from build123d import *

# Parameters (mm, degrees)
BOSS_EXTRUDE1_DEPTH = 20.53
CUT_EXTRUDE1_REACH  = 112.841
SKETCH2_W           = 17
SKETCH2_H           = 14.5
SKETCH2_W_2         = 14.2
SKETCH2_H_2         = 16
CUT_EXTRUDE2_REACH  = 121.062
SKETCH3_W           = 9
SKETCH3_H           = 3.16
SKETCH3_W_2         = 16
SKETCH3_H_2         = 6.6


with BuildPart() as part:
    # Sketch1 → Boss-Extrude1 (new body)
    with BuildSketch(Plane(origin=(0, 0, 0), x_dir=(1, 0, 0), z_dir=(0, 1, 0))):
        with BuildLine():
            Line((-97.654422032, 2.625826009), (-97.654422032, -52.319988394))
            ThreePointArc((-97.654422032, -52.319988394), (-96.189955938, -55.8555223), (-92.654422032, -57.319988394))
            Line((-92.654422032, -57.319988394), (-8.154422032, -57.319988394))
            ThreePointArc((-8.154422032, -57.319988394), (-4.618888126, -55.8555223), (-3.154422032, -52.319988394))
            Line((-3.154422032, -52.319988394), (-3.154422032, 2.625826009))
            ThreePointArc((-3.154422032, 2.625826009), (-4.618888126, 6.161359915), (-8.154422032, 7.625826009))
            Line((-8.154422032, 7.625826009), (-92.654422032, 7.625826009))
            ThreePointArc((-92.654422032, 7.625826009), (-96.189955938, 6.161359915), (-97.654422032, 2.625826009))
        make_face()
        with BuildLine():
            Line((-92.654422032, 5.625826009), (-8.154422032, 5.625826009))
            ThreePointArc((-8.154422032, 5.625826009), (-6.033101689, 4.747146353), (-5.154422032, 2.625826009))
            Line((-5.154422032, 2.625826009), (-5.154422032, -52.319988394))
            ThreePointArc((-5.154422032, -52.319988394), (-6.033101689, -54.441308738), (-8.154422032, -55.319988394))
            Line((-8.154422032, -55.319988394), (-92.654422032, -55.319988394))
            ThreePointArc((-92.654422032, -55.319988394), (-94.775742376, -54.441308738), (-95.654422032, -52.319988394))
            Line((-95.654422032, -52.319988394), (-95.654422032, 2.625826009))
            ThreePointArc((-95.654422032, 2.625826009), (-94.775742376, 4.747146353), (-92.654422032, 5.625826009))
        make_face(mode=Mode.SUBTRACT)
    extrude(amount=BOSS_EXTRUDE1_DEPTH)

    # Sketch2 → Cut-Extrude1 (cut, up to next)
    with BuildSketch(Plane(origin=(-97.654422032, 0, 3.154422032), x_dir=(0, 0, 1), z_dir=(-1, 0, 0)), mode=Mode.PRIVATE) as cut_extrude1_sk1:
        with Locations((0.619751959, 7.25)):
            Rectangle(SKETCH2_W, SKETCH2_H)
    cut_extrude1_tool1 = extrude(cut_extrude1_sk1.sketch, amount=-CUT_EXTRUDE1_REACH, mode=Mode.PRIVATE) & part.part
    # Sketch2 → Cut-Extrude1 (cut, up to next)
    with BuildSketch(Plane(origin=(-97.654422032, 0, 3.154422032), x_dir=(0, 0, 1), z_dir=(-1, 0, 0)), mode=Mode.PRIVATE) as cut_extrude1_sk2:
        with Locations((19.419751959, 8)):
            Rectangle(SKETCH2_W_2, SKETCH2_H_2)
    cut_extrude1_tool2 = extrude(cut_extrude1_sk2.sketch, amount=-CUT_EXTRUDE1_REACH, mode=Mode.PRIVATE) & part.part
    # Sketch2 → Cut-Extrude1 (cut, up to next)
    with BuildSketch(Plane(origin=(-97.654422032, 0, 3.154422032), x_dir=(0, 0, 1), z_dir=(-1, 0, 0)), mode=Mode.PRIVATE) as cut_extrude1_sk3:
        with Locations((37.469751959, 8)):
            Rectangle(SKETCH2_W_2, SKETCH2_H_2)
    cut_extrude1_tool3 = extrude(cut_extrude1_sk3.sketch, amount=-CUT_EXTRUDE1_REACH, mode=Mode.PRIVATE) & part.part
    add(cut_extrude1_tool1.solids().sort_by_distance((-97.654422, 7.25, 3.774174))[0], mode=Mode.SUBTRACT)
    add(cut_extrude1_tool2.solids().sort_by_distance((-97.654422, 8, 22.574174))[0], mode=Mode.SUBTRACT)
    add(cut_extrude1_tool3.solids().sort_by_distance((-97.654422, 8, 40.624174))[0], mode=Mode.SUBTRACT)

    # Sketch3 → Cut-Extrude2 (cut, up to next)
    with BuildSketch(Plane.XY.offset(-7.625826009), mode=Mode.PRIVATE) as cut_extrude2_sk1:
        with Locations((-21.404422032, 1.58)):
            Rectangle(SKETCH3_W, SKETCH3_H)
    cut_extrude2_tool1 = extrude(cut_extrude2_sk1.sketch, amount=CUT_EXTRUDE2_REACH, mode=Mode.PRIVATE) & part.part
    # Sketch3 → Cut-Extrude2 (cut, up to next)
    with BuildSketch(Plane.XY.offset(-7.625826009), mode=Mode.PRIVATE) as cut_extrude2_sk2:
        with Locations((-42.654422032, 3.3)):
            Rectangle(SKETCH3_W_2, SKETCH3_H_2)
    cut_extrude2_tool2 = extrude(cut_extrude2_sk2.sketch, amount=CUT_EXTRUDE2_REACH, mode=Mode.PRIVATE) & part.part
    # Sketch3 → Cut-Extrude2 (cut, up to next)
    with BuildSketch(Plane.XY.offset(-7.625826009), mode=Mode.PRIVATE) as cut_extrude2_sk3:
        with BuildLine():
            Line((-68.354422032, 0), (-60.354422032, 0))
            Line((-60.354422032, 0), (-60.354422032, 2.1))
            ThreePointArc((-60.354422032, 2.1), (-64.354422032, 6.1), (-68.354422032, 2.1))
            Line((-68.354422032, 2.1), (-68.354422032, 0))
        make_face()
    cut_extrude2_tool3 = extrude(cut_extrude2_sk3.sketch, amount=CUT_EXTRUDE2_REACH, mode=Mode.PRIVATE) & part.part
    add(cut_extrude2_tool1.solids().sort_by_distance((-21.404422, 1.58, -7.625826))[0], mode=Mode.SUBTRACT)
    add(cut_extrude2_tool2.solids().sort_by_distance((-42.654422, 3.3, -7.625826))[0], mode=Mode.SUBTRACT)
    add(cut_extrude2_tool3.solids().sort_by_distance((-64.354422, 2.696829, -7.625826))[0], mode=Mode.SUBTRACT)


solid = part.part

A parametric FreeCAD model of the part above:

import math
import FreeCAD as App
import Part
import Sketcher
Q = App.Units.Quantity

doc = App.newDocument("Part")
body = doc.addObject("PartDesign::Body", "Body")

# Sketch on XZ plane
sketch1 = body.newObject("Sketcher::SketchObject", "Sketch")
sketch1.AttachmentSupport = (doc.getObject("XZ_Plane"), [""])
sketch1.MapMode = "FlatFace"
sketch1.addGeometry(Part.LineSegment(App.Vector(-97.654422, -2.625826, 0), App.Vector(-97.654422, 52.319988, 0)), False)
sketch1.addGeometry(Part.ArcOfCircle(Part.Circle(App.Vector(-92.654422, 52.319988, 0), App.Vector(0, 0, 1), 5), math.radians(90), math.radians(180)), False)
sketch1.addGeometry(Part.LineSegment(App.Vector(-92.654422, 57.319988, 0), App.Vector(-8.154422, 57.319988, 0)), False)
sketch1.addGeometry(Part.ArcOfCircle(Part.Circle(App.Vector(-8.154422, 52.319988, 0), App.Vector(0, 0, 1), 5), math.radians(0), math.radians(90)), False)
sketch1.addGeometry(Part.LineSegment(App.Vector(-3.154422, 52.319988, 0), App.Vector(-3.154422, -2.625826, 0)), False)
sketch1.addGeometry(Part.ArcOfCircle(Part.Circle(App.Vector(-8.154422, -2.625826, 0), App.Vector(0, 0, 1), 5), math.radians(-90), math.radians(0)), False)
sketch1.addGeometry(Part.LineSegment(App.Vector(-8.154422, -7.625826, 0), App.Vector(-92.654422, -7.625826, 0)), False)
sketch1.addGeometry(Part.ArcOfCircle(Part.Circle(App.Vector(-92.654422, -2.625826, 0), App.Vector(0, 0, 1), 5), math.radians(180), math.radians(270)), False)
sketch1.addGeometry(Part.ArcOfCircle(Part.Circle(App.Vector(-92.654422, -2.625826, 0), App.Vector(0, 0, 1), 3), math.radians(180), math.radians(270)), False)
sketch1.addGeometry(Part.LineSegment(App.Vector(-92.654422, -5.625826, 0), App.Vector(-8.154422, -5.625826, 0)), False)
sketch1.addGeometry(Part.ArcOfCircle(Part.Circle(App.Vector(-8.154422, -2.625826, 0), App.Vector(0, 0, 1), 3), math.radians(-90), math.radians(0)), False)
sketch1.addGeometry(Part.LineSegment(App.Vector(-5.154422, -2.625826, 0), App.Vector(-5.154422, 52.319988, 0)), False)
sketch1.addGeometry(Part.ArcOfCircle(Part.Circle(App.Vector(-8.154422, 52.319988, 0), App.Vector(0, 0, 1), 3), math.radians(0), math.radians(90)), False)
sketch1.addGeometry(Part.LineSegment(App.Vector(-8.154422, 55.319988, 0), App.Vector(-92.654422, 55.319988, 0)), False)
sketch1.addGeometry(Part.ArcOfCircle(Part.Circle(App.Vector(-92.654422, 52.319988, 0), App.Vector(0, 0, 1), 3), math.radians(90), math.radians(180)), False)
sketch1.addGeometry(Part.LineSegment(App.Vector(-95.654422, 52.319988, 0), App.Vector(-95.654422, -2.625826, 0)), False)
sketch1.addConstraint(Sketcher.Constraint("Tangent", 0, 2, 1, 2))
sketch1.addConstraint(Sketcher.Constraint("Tangent", 1, 1, 2, 1))
sketch1.addConstraint(Sketcher.Constraint("Tangent", 2, 2, 3, 2))
sketch1.addConstraint(Sketcher.Constraint("Tangent", 3, 1, 4, 1))
sketch1.addConstraint(Sketcher.Constraint("Tangent", 4, 2, 5, 2))
sketch1.addConstraint(Sketcher.Constraint("Tangent", 5, 1, 6, 1))
sketch1.addConstraint(Sketcher.Constraint("Tangent", 6, 2, 7, 2))
sketch1.addConstraint(Sketcher.Constraint("Tangent", 7, 1, 0, 1))
sketch1.addConstraint(Sketcher.Constraint("Tangent", 8, 2, 9, 1))
sketch1.addConstraint(Sketcher.Constraint("Tangent", 9, 2, 10, 1))
sketch1.addConstraint(Sketcher.Constraint("Tangent", 10, 2, 11, 1))
sketch1.addConstraint(Sketcher.Constraint("Tangent", 11, 2, 12, 1))
sketch1.addConstraint(Sketcher.Constraint("Tangent", 12, 2, 13, 1))
sketch1.addConstraint(Sketcher.Constraint("Tangent", 13, 2, 14, 1))
sketch1.addConstraint(Sketcher.Constraint("Tangent", 14, 2, 15, 1))
sketch1.addConstraint(Sketcher.Constraint("Tangent", 15, 2, 8, 1))
sketch1.addConstraint(Sketcher.Constraint("Vertical", 0))
sketch1.addConstraint(Sketcher.Constraint("Horizontal", 2))
sketch1.addConstraint(Sketcher.Constraint("Vertical", 4))
sketch1.addConstraint(Sketcher.Constraint("Horizontal", 6))
sketch1.addConstraint(Sketcher.Constraint("Horizontal", 9))
sketch1.addConstraint(Sketcher.Constraint("Vertical", 11))
sketch1.addConstraint(Sketcher.Constraint("Horizontal", 13))
sketch1.addConstraint(Sketcher.Constraint("Vertical", 15))
sketch1.addConstraint(Sketcher.Constraint("Coincident", 8, 3, 7, 3))
sketch1.addConstraint(Sketcher.Constraint("Coincident", 10, 3, 5, 3))
sketch1.addConstraint(Sketcher.Constraint("Coincident", 12, 3, 3, 3))
sketch1.addConstraint(Sketcher.Constraint("Equal", 1, 3))
sketch1.addConstraint(Sketcher.Constraint("Equal", 3, 5))
sketch1.addConstraint(Sketcher.Constraint("Equal", 5, 7))
sketch1.addConstraint(Sketcher.Constraint("Equal", 12, 14))
sketch1.addConstraint(Sketcher.Constraint("Radius", 1, Q("5 mm")))
sketch1.addConstraint(Sketcher.Constraint("Radius", 8, Q("3 mm")))
sketch1.addConstraint(Sketcher.Constraint("DistanceX", 2, 1, 2, 2, Q("84.5 mm")))
sketch1.addConstraint(Sketcher.Constraint("DistanceY", 0, 1, 0, 2, Q("54.945814 mm")))
sketch1.addConstraint(Sketcher.Constraint("DistanceY", -1, 1, 1, 3, Q("52.319988 mm")))
sketch1.addConstraint(Sketcher.Constraint("DistanceX", 1, 3, -1, 1, Q("92.654422 mm")))
pad1 = body.newObject("PartDesign::Pad", "Pad")
pad1.Profile = sketch1
pad1.Length = 20.53
pad1.Reversed = True

# Sketch on YZ plane
sketch2 = body.newObject("Sketcher::SketchObject", "Sketch001")
sketch2.AttachmentSupport = (doc.getObject("YZ_Plane"), [""])
sketch2.MapMode = "FlatFace"
sketch2.AttachmentOffset = App.Placement(App.Vector(0, 0, -97.654422), App.Rotation())
sketch2.addGeometry(Part.LineSegment(App.Vector(14.5, -4.725826, 0), App.Vector(0, -4.725826, 0)), False)
sketch2.addGeometry(Part.LineSegment(App.Vector(0, -4.725826, 0), App.Vector(0, 12.274174, 0)), False)
sketch2.addGeometry(Part.LineSegment(App.Vector(0, 12.274174, 0), App.Vector(14.5, 12.274174, 0)), False)
sketch2.addGeometry(Part.LineSegment(App.Vector(14.5, 12.274174, 0), App.Vector(14.5, -4.725826, 0)), False)
sketch2.addConstraint(Sketcher.Constraint("Coincident", 0, 2, 1, 1))
sketch2.addConstraint(Sketcher.Constraint("Coincident", 1, 2, 2, 1))
sketch2.addConstraint(Sketcher.Constraint("Coincident", 2, 2, 3, 1))
sketch2.addConstraint(Sketcher.Constraint("Coincident", 3, 2, 0, 1))
sketch2.addConstraint(Sketcher.Constraint("Horizontal", 0))
sketch2.addConstraint(Sketcher.Constraint("Vertical", 1))
sketch2.addConstraint(Sketcher.Constraint("Horizontal", 2))
sketch2.addConstraint(Sketcher.Constraint("Vertical", 3))
sketch2.addConstraint(Sketcher.Constraint("PointOnObject", 0, 2, -2))
sketch2.addConstraint(Sketcher.Constraint("DistanceY", 1, 1, 1, 2, Q("17 mm")))
sketch2.addConstraint(Sketcher.Constraint("DistanceX", 0, 2, 0, 1, Q("14.5 mm")))
sketch2.addConstraint(Sketcher.Constraint("DistanceY", 0, 2, -1, 1, Q("4.725826 mm")))
pocket1 = body.newObject("PartDesign::Pocket", "Pocket")
pocket1.Profile = sketch2
pocket1.Length = 2.857571
pocket1.Reversed = True

# Sketch on YZ plane
sketch3 = body.newObject("Sketcher::SketchObject", "Sketch002")
sketch3.AttachmentSupport = (doc.getObject("YZ_Plane"), [""])
sketch3.MapMode = "FlatFace"
sketch3.AttachmentOffset = App.Placement(App.Vector(0, 0, -97.654422), App.Rotation())
sketch3.addGeometry(Part.LineSegment(App.Vector(16, 15.474174, 0), App.Vector(0, 15.474174, 0)), False)
sketch3.addGeometry(Part.LineSegment(App.Vector(0, 15.474174, 0), App.Vector(0, 29.674174, 0)), False)
sketch3.addGeometry(Part.LineSegment(App.Vector(0, 29.674174, 0), App.Vector(16, 29.674174, 0)), False)
sketch3.addGeometry(Part.LineSegment(App.Vector(16, 29.674174, 0), App.Vector(16, 15.474174, 0)), False)
sketch3.addConstraint(Sketcher.Constraint("Coincident", 0, 2, 1, 1))
sketch3.addConstraint(Sketcher.Constraint("Coincident", 1, 2, 2, 1))
sketch3.addConstraint(Sketcher.Constraint("Coincident", 2, 2, 3, 1))
sketch3.addConstraint(Sketcher.Constraint("Coincident", 3, 2, 0, 1))
sketch3.addConstraint(Sketcher.Constraint("Horizontal", 0))
sketch3.addConstraint(Sketcher.Constraint("Vertical", 1))
sketch3.addConstraint(Sketcher.Constraint("Horizontal", 2))
sketch3.addConstraint(Sketcher.Constraint("Vertical", 3))
sketch3.addConstraint(Sketcher.Constraint("PointOnObject", 0, 2, -2))
sketch3.addConstraint(Sketcher.Constraint("DistanceX", 0, 2, 0, 1, Q("16 mm")))
sketch3.addConstraint(Sketcher.Constraint("DistanceY", 1, 1, 1, 2, Q("14.2 mm")))
sketch3.addConstraint(Sketcher.Constraint("DistanceY", -1, 1, 0, 2, Q("15.474174 mm")))
pocket2 = body.newObject("PartDesign::Pocket", "Pocket001")
pocket2.Profile = sketch3
pocket2.Type = "UpToFirst"
pocket2.Reversed = True

# Sketch on YZ plane
sketch4 = body.newObject("Sketcher::SketchObject", "Sketch003")
sketch4.AttachmentSupport = (doc.getObject("YZ_Plane"), [""])
sketch4.MapMode = "FlatFace"
sketch4.AttachmentOffset = App.Placement(App.Vector(0, 0, -97.654422), App.Rotation())
sketch4.addGeometry(Part.LineSegment(App.Vector(16, 33.524174, 0), App.Vector(0, 33.524174, 0)), False)
sketch4.addGeometry(Part.LineSegment(App.Vector(0, 33.524174, 0), App.Vector(0, 47.724174, 0)), False)
sketch4.addGeometry(Part.LineSegment(App.Vector(0, 47.724174, 0), App.Vector(16, 47.724174, 0)), False)
sketch4.addGeometry(Part.LineSegment(App.Vector(16, 47.724174, 0), App.Vector(16, 33.524174, 0)), False)
sketch4.addConstraint(Sketcher.Constraint("Coincident", 0, 2, 1, 1))
sketch4.addConstraint(Sketcher.Constraint("Coincident", 1, 2, 2, 1))
sketch4.addConstraint(Sketcher.Constraint("Coincident", 2, 2, 3, 1))
sketch4.addConstraint(Sketcher.Constraint("Coincident", 3, 2, 0, 1))
sketch4.addConstraint(Sketcher.Constraint("Horizontal", 0))
sketch4.addConstraint(Sketcher.Constraint("Vertical", 1))
sketch4.addConstraint(Sketcher.Constraint("Horizontal", 2))
sketch4.addConstraint(Sketcher.Constraint("Vertical", 3))
sketch4.addConstraint(Sketcher.Constraint("PointOnObject", 0, 2, -2))
sketch4.addConstraint(Sketcher.Constraint("DistanceX", 0, 2, 0, 1, Q("16 mm")))
sketch4.addConstraint(Sketcher.Constraint("DistanceY", 1, 1, 1, 2, Q("14.2 mm")))
sketch4.addConstraint(Sketcher.Constraint("DistanceY", -1, 1, 0, 2, Q("33.524174 mm")))
pocket3 = body.newObject("PartDesign::Pocket", "Pocket002")
pocket3.Profile = sketch4
pocket3.Type = "UpToFirst"
pocket3.Reversed = True

# Sketch on XY plane
sketch5 = body.newObject("Sketcher::SketchObject", "Sketch004")
sketch5.AttachmentSupport = (doc.getObject("XY_Plane"), [""])
sketch5.MapMode = "FlatFace"
sketch5.AttachmentOffset = App.Placement(App.Vector(0, 0, -7.625826), App.Rotation())
sketch5.addGeometry(Part.LineSegment(App.Vector(-25.904422, 3.16, 0), App.Vector(-25.904422, 0, 0)), False)
sketch5.addGeometry(Part.LineSegment(App.Vector(-25.904422, 0, 0), App.Vector(-16.904422, 0, 0)), False)
sketch5.addGeometry(Part.LineSegment(App.Vector(-16.904422, 0, 0), App.Vector(-16.904422, 3.16, 0)), False)
sketch5.addGeometry(Part.LineSegment(App.Vector(-16.904422, 3.16, 0), App.Vector(-25.904422, 3.16, 0)), False)
sketch5.addConstraint(Sketcher.Constraint("Coincident", 0, 2, 1, 1))
sketch5.addConstraint(Sketcher.Constraint("Coincident", 1, 2, 2, 1))
sketch5.addConstraint(Sketcher.Constraint("Coincident", 2, 2, 3, 1))
sketch5.addConstraint(Sketcher.Constraint("Coincident", 3, 2, 0, 1))
sketch5.addConstraint(Sketcher.Constraint("Vertical", 0))
sketch5.addConstraint(Sketcher.Constraint("Horizontal", 1))
sketch5.addConstraint(Sketcher.Constraint("Vertical", 2))
sketch5.addConstraint(Sketcher.Constraint("Horizontal", 3))
sketch5.addConstraint(Sketcher.Constraint("PointOnObject", 0, 2, -1))
sketch5.addConstraint(Sketcher.Constraint("DistanceX", 1, 1, 1, 2, Q("9 mm")))
sketch5.addConstraint(Sketcher.Constraint("DistanceY", 0, 2, 0, 1, Q("3.16 mm")))
sketch5.addConstraint(Sketcher.Constraint("DistanceX", 0, 2, -1, 1, Q("25.904422 mm")))
pocket4 = body.newObject("PartDesign::Pocket", "Pocket003")
pocket4.Profile = sketch5
pocket4.Type = "UpToFirst"
pocket4.Reversed = True

# Sketch on XY plane
sketch6 = body.newObject("Sketcher::SketchObject", "Sketch005")
sketch6.AttachmentSupport = (doc.getObject("XY_Plane"), [""])
sketch6.MapMode = "FlatFace"
sketch6.AttachmentOffset = App.Placement(App.Vector(0, 0, -7.625826), App.Rotation())
sketch6.addGeometry(Part.LineSegment(App.Vector(-50.654422, 6.6, 0), App.Vector(-50.654422, 0, 0)), False)
sketch6.addGeometry(Part.LineSegment(App.Vector(-50.654422, 0, 0), App.Vector(-34.654422, 0, 0)), False)
sketch6.addGeometry(Part.LineSegment(App.Vector(-34.654422, 0, 0), App.Vector(-34.654422, 6.6, 0)), False)
sketch6.addGeometry(Part.LineSegment(App.Vector(-34.654422, 6.6, 0), App.Vector(-50.654422, 6.6, 0)), False)
sketch6.addConstraint(Sketcher.Constraint("Coincident", 0, 2, 1, 1))
sketch6.addConstraint(Sketcher.Constraint("Coincident", 1, 2, 2, 1))
sketch6.addConstraint(Sketcher.Constraint("Coincident", 2, 2, 3, 1))
sketch6.addConstraint(Sketcher.Constraint("Coincident", 3, 2, 0, 1))
sketch6.addConstraint(Sketcher.Constraint("Vertical", 0))
sketch6.addConstraint(Sketcher.Constraint("Horizontal", 1))
sketch6.addConstraint(Sketcher.Constraint("Vertical", 2))
sketch6.addConstraint(Sketcher.Constraint("Horizontal", 3))
sketch6.addConstraint(Sketcher.Constraint("PointOnObject", 0, 2, -1))
sketch6.addConstraint(Sketcher.Constraint("DistanceX", 1, 1, 1, 2, Q("16 mm")))
sketch6.addConstraint(Sketcher.Constraint("DistanceY", 0, 2, 0, 1, Q("6.6 mm")))
sketch6.addConstraint(Sketcher.Constraint("DistanceX", 0, 2, -1, 1, Q("50.654422 mm")))
pocket5 = body.newObject("PartDesign::Pocket", "Pocket004")
pocket5.Profile = sketch6
pocket5.Type = "UpToFirst"
pocket5.Reversed = True

# Sketch on XY plane
sketch7 = body.newObject("Sketcher::SketchObject", "Sketch006")
sketch7.AttachmentSupport = (doc.getObject("XY_Plane"), [""])
sketch7.MapMode = "FlatFace"
sketch7.AttachmentOffset = App.Placement(App.Vector(0, 0, -7.625826), App.Rotation())
sketch7.addGeometry(Part.LineSegment(App.Vector(-68.354422, 0, 0), App.Vector(-60.354422, 0, 0)), False)
sketch7.addGeometry(Part.LineSegment(App.Vector(-60.354422, 0, 0), App.Vector(-60.354422, 2.1, 0)), False)
sketch7.addGeometry(Part.ArcOfCircle(Part.Circle(App.Vector(-64.354422, 2.1, 0), App.Vector(0, 0, 1), 4), math.radians(0), math.radians(180)), False)
sketch7.addGeometry(Part.LineSegment(App.Vector(-68.354422, 2.1, 0), App.Vector(-68.354422, 0, 0)), False)
sketch7.addConstraint(Sketcher.Constraint("Coincident", 0, 2, 1, 1))
sketch7.addConstraint(Sketcher.Constraint("Tangent", 1, 2, 2, 1))
sketch7.addConstraint(Sketcher.Constraint("Tangent", 2, 2, 3, 1))
sketch7.addConstraint(Sketcher.Constraint("Coincident", 3, 2, 0, 1))
sketch7.addConstraint(Sketcher.Constraint("Horizontal", 0))
sketch7.addConstraint(Sketcher.Constraint("Vertical", 1))
sketch7.addConstraint(Sketcher.Constraint("Vertical", 3))
sketch7.addConstraint(Sketcher.Constraint("PointOnObject", 0, 2, -1))
sketch7.addConstraint(Sketcher.Constraint("Radius", 2, Q("4 mm")))
sketch7.addConstraint(Sketcher.Constraint("DistanceY", 1, 1, 1, 2, Q("2.1 mm")))
sketch7.addConstraint(Sketcher.Constraint("DistanceX", 2, 3, -1, 1, Q("64.354422 mm")))
pocket6 = body.newObject("PartDesign::Pocket", "Pocket005")
pocket6.Profile = sketch7
pocket6.Type = "UpToFirst"
pocket6.Reversed = True

doc.recompute()
